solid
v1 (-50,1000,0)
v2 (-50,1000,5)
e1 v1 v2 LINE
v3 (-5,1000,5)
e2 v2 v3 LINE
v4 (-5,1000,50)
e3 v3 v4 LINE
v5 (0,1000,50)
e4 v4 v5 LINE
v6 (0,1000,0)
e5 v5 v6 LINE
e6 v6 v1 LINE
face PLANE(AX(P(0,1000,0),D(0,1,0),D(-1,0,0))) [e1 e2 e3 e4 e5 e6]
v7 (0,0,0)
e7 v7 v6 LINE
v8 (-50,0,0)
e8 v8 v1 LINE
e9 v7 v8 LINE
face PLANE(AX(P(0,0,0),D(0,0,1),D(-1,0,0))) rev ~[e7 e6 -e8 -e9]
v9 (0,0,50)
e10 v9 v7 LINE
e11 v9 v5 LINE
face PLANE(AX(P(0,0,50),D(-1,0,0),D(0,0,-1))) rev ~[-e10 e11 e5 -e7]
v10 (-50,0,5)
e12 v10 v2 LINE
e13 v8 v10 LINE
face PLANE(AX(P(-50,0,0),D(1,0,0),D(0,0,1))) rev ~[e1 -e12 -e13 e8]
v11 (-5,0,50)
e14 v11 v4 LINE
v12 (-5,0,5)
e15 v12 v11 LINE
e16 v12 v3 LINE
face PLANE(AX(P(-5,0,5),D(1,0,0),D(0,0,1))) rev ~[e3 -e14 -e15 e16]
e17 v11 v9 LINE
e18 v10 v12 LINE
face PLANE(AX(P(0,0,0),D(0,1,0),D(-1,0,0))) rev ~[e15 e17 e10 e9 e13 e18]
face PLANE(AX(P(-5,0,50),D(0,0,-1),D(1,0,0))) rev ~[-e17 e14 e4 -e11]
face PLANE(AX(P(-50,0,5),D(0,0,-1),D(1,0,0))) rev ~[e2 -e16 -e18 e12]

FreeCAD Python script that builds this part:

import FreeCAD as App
import Part
import Sketcher

V = App.Vector
Q = App.Units.Quantity

doc = App.newDocument("Part")
body = doc.addObject("PartDesign::Body", "Body")

sketch1 = body.newObject("Sketcher::SketchObject", "Sketch")
sketch1.AttachmentSupport = (doc.getObject("XZ_Plane"), [""])
sketch1.MapMode = "FlatFace"
sketch1.addGeometry([
    Part.LineSegment(V(-5, 50, 0), V(0, 50, 0)),
    Part.LineSegment(V(0, 50, 0), V(0, 0, 0)),
    Part.LineSegment(V(0, 0, 0), V(-50, 0, 0)),
    Part.LineSegment(V(-50, 0, 0), V(-50, 5, 0)),
    Part.LineSegment(V(-50, 5, 0), V(-5, 5, 0)),
    Part.LineSegment(V(-5, 5, 0), V(-5, 50, 0)),
], False)
sketch1.addConstraint([
    Sketcher.Constraint("Coincident", 0, 2, 1, 1),
    Sketcher.Constraint("Coincident", 1, 2, 2, 1),
    Sketcher.Constraint("Coincident", 2, 2, 3, 1),
    Sketcher.Constraint("Coincident", 3, 2, 4, 1),
    Sketcher.Constraint("Coincident", 4, 2, 5, 1),
    Sketcher.Constraint("Coincident", 5, 2, 0, 1),
    Sketcher.Constraint("Horizontal", 0),
    Sketcher.Constraint("Vertical", 1),
    Sketcher.Constraint("Horizontal", 2),
    Sketcher.Constraint("Vertical", 3),
    Sketcher.Constraint("Horizontal", 4),
    Sketcher.Constraint("Vertical", 5),
    Sketcher.Constraint("Coincident", 1, 2, -1, 1),
    Sketcher.Constraint("Equal", 2, 1),
    Sketcher.Constraint("Equal", 0, 3),
    Sketcher.Constraint("DistanceX", 0, 1, 0, 2, Q("5 mm")),
    Sketcher.Constraint("DistanceX", 2, 2, 2, 1, Q("50 mm")),
])
pad1 = body.newObject("PartDesign::Pad", "Pad")
pad1.Profile = sketch1
pad1.Length = 1000
pad1.Reversed = True

doc.recompute()
